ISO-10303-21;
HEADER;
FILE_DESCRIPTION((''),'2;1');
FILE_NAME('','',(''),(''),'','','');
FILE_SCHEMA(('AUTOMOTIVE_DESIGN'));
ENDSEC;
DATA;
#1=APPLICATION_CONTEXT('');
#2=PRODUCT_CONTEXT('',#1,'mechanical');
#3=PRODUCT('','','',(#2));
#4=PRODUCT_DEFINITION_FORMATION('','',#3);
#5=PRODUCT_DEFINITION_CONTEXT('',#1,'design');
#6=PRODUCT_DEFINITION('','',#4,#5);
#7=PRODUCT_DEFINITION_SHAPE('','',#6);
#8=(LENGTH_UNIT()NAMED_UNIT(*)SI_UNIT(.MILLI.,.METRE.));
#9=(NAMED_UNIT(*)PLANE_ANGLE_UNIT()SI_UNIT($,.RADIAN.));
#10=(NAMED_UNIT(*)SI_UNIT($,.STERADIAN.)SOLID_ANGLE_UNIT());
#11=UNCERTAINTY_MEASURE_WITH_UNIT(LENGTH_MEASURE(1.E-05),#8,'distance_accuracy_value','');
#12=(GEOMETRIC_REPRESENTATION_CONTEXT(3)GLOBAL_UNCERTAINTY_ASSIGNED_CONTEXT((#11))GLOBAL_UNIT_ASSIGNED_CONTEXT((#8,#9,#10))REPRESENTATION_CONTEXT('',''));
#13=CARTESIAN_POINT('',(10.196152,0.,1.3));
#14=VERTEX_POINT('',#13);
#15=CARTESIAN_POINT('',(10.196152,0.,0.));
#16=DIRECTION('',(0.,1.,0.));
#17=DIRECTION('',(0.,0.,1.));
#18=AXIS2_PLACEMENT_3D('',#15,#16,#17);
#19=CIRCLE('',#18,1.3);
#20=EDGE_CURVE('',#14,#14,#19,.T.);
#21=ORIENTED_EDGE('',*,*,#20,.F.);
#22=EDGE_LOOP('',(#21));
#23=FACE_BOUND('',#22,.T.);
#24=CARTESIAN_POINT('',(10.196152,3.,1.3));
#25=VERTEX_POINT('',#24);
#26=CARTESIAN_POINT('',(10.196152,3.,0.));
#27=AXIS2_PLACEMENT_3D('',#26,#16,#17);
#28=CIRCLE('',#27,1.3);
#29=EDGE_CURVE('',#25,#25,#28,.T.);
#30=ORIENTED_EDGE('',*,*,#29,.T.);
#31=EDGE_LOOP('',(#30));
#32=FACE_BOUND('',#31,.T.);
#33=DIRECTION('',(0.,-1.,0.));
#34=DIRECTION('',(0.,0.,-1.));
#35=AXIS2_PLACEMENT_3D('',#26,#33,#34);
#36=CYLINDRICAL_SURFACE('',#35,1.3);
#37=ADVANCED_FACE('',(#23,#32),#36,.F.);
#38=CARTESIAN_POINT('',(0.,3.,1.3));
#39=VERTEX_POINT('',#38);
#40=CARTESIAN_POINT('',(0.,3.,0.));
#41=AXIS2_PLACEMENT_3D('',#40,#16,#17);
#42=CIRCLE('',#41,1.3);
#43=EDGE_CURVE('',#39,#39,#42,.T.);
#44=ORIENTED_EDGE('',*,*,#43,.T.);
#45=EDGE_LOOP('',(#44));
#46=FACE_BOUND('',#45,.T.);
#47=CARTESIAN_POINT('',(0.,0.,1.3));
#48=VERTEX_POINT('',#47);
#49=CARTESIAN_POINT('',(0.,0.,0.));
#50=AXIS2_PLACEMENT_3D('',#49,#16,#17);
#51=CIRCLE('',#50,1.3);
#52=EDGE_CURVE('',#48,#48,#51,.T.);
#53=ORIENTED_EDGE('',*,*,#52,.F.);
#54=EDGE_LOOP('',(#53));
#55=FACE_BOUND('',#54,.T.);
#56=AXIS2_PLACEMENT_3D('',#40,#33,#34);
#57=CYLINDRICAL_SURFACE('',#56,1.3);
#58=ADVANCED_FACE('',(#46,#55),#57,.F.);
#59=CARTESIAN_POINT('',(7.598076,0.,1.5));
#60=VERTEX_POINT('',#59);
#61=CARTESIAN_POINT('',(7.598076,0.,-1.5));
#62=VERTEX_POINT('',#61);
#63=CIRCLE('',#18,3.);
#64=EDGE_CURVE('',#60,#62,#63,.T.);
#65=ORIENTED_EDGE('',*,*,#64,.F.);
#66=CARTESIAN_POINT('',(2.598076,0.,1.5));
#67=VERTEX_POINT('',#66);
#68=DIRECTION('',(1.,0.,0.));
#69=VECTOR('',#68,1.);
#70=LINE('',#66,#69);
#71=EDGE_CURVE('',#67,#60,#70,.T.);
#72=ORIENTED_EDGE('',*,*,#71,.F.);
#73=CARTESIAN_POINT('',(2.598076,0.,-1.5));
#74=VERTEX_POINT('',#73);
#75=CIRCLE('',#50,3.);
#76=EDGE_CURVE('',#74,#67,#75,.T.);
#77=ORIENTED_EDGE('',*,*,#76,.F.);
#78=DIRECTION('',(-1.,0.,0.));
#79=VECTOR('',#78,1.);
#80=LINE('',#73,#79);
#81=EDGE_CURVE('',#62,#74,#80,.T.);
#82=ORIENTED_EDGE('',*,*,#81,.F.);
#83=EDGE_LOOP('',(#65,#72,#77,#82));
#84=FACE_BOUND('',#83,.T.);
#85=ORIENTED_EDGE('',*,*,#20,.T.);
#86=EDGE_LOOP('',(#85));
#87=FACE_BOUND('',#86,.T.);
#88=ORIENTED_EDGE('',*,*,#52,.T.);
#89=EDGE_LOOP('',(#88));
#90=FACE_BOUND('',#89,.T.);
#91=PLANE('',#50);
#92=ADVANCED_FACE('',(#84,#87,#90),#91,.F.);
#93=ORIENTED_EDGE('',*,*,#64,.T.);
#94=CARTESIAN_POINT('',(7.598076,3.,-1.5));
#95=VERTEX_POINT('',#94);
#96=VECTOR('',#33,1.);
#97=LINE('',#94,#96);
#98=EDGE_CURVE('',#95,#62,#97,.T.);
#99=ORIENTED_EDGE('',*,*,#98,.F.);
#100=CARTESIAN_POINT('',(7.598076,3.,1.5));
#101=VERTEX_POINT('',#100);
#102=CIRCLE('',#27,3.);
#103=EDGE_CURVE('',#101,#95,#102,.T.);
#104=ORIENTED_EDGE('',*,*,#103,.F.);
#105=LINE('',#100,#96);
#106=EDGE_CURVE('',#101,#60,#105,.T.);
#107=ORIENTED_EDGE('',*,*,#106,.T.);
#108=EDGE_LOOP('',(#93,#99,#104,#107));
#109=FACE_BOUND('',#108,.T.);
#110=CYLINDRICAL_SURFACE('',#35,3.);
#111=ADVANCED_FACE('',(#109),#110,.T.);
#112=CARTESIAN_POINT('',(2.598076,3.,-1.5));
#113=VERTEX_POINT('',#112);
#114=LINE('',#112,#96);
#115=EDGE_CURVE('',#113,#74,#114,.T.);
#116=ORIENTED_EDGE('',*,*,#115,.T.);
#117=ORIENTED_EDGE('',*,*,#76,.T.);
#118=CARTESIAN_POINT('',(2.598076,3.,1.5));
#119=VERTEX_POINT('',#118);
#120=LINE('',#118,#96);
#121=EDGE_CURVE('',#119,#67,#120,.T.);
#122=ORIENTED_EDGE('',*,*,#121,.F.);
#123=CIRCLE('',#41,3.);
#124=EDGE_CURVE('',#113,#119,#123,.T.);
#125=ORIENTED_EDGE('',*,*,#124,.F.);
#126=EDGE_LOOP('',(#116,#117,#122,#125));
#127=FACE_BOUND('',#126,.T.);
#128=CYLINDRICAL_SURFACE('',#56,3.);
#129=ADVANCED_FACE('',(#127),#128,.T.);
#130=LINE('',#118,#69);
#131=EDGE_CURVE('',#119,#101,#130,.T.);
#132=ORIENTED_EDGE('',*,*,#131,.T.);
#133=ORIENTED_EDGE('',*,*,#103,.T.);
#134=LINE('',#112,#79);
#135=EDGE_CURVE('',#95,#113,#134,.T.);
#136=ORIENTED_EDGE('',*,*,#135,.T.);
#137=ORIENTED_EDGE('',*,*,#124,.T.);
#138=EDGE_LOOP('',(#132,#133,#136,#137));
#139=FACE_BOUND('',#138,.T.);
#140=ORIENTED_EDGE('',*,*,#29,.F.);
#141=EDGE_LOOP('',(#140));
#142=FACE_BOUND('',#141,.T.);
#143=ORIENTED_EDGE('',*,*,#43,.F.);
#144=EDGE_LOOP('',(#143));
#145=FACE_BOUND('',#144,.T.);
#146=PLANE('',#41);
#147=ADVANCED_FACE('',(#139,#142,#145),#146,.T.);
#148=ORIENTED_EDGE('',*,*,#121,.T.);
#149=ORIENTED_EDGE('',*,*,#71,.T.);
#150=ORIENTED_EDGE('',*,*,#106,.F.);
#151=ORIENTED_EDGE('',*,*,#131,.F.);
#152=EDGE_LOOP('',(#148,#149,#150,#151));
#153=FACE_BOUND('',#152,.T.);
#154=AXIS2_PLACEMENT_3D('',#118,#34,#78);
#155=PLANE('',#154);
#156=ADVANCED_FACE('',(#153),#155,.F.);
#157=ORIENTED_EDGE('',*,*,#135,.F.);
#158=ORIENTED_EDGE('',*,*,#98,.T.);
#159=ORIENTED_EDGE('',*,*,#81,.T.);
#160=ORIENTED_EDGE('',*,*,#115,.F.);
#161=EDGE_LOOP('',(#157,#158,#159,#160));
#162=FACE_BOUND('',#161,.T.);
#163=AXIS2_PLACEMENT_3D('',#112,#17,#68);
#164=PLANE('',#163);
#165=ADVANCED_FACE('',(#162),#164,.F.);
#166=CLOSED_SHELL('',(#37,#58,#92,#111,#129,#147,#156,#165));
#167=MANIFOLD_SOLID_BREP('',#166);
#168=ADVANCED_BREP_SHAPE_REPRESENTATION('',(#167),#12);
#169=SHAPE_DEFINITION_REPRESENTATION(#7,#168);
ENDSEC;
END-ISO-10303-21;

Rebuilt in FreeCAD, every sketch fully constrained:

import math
import FreeCAD as App
import Part
import Sketcher

V = App.Vector
Q = App.Units.Quantity

doc = App.newDocument("Part")
params = doc.addObject("Spreadsheet::Sheet", "Params")
for row, (alias, value) in enumerate([
    ("sketch1_radius", "3 mm"),
    ("sketch1_diameter", "2.6 mm"),
    ("sketch1_width", "5 mm"),
    ("pad1_length", "3 mm"),
], start=1):
    params.set(f"A{row}", alias)
    params.set(f"B{row}", "=" + value)
    params.setAlias(f"B{row}", alias)

body = doc.addObject("PartDesign::Body", "Body")

sketch1 = body.newObject("Sketcher::SketchObject", "Sketch")
sketch1.AttachmentSupport = (doc.getObject("XZ_Plane"), [""])
sketch1.MapMode = "FlatFace"
sketch1.addGeometry(Part.LineSegment(V(7.6, -1.5, 0), V(2.6, -1.5, 0)), False)
sketch1.addGeometry(Part.ArcOfCircle(Part.Circle(V(0, 0, 0), V(0, 0, 1), 3), math.radians(30), math.radians(330)), False)
sketch1.addGeometry(Part.LineSegment(V(2.6, 1.5, 0), V(7.6, 1.5, 0)), False)
sketch1.addGeometry(Part.ArcOfCircle(Part.Circle(V(10.2, 0, 0), V(0, 0, 1), 3), math.radians(-150), math.radians(150)), False)
sketch1.addGeometry(Part.Circle(V(10.2, 0, 0), V(0, 0, 1), 1.3), False)
sketch1.addGeometry(Part.Circle(V(0, 0, 0), V(0, 0, 1), 1.3), False)
sketch1.addConstraint(Sketcher.Constraint("Coincident", 0, 2, 1, 2))
sketch1.addConstraint(Sketcher.Constraint("Coincident", 1, 1, 2, 1))
sketch1.addConstraint(Sketcher.Constraint("Coincident", 2, 2, 3, 2))
sketch1.addConstraint(Sketcher.Constraint("Coincident", 3, 1, 0, 1))
sketch1.addConstraint(Sketcher.Constraint("Horizontal", 0))
sketch1.addConstraint(Sketcher.Constraint("Horizontal", 2))
sketch1.addConstraint(Sketcher.Constraint("Coincident", 1, 3, -1, 1))
sketch1.addConstraint(Sketcher.Constraint("Coincident", 5, 3, -1, 1))
sketch1.addConstraint(Sketcher.Constraint("Coincident", 4, 3, 3, 3))
sketch1.addConstraint(Sketcher.Constraint("Equal", 1, 3))
sketch1.addConstraint(Sketcher.Constraint("Equal", 4, 5))
sketch1.addConstraint(Sketcher.Constraint("Symmetric", 2, 2, 3, 1, -1))
sketch1.addConstraint(Sketcher.Constraint("Radius", 1, Q("3 mm")))
sketch1.addConstraint(Sketcher.Constraint("Diameter", 4, Q("2.6 mm")))
sketch1.addConstraint(Sketcher.Constraint("DistanceX", 0, 2, 0, 1, Q("5 mm")))
sketch1.addConstraint(Sketcher.Constraint("DistanceY", 0, 2, 1, 1, Q("3 mm")))
sketch1.setExpression("Constraints[12]", "Params.sketch1_radius")
sketch1.setExpression("Constraints[13]", "Params.sketch1_diameter")
sketch1.setExpression("Constraints[14]", "Params.sketch1_width")
pad1 = body.newObject("PartDesign::Pad", "Pad")
pad1.Profile = sketch1
pad1.setExpression("Length", "Params.pad1_length")
pad1.Reversed = True

doc.recompute()
